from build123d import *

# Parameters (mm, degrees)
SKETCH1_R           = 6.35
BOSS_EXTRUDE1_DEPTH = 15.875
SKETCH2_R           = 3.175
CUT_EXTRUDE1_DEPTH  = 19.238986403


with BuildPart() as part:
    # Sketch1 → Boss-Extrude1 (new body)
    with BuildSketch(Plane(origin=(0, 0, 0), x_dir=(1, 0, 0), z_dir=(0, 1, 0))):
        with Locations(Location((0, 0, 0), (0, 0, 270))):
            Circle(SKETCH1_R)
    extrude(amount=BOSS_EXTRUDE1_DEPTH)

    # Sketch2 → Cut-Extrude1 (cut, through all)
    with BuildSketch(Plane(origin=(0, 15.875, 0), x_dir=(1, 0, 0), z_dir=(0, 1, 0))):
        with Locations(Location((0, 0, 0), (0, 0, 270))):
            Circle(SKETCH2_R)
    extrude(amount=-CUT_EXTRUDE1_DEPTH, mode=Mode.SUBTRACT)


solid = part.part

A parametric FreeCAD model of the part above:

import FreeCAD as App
import Part
import Sketcher
Q = App.Units.Quantity

doc = App.newDocument("Part")
body = doc.addObject("PartDesign::Body", "Body")

sketch1 = body.newObject("Sketcher::SketchObject", "Sketch")
sketch1.AttachmentSupport = (doc.getObject("XZ_Plane"), [""])
sketch1.MapMode = "FlatFace"
sketch1.addGeometry(Part.Circle(App.Vector(0, 0, 0), App.Vector(0, 0, 1), 6), False)
sketch1.addConstraint([
    Sketcher.Constraint("Coincident", 0, 3, -1, 1),
    Sketcher.Constraint("Diameter", 0, Q("0.5 in")),
])
pad1 = body.newObject("PartDesign::Pad", "Pad")
pad1.Profile = sketch1
pad1.Length = Q("0.625 in")
pad1.Reversed = True

sketch2 = body.newObject("Sketcher::SketchObject", "Sketch001")
sketch2.AttachmentSupport = (doc.getObject("XZ_Plane"), [""])
sketch2.MapMode = "FlatFace"
sketch2.AttachmentOffset = App.Placement(App.Vector(0, 0, -0.625 * 25.4), App.Rotation())
sketch2.addGeometry(Part.Circle(App.Vector(0, 0, 0), App.Vector(0, 0, 1), 3.2), False)
sketch2.addConstraint([
    Sketcher.Constraint("Coincident", 0, 3, -1, 1),
    Sketcher.Constraint("Diameter", 0, Q("0.25 in")),
])
pocket1 = body.newObject("PartDesign::Pocket", "Pocket")
pocket1.Profile = sketch2
pocket1.Type = "ThroughAll"
pocket1.Reversed = True

doc.recompute()
